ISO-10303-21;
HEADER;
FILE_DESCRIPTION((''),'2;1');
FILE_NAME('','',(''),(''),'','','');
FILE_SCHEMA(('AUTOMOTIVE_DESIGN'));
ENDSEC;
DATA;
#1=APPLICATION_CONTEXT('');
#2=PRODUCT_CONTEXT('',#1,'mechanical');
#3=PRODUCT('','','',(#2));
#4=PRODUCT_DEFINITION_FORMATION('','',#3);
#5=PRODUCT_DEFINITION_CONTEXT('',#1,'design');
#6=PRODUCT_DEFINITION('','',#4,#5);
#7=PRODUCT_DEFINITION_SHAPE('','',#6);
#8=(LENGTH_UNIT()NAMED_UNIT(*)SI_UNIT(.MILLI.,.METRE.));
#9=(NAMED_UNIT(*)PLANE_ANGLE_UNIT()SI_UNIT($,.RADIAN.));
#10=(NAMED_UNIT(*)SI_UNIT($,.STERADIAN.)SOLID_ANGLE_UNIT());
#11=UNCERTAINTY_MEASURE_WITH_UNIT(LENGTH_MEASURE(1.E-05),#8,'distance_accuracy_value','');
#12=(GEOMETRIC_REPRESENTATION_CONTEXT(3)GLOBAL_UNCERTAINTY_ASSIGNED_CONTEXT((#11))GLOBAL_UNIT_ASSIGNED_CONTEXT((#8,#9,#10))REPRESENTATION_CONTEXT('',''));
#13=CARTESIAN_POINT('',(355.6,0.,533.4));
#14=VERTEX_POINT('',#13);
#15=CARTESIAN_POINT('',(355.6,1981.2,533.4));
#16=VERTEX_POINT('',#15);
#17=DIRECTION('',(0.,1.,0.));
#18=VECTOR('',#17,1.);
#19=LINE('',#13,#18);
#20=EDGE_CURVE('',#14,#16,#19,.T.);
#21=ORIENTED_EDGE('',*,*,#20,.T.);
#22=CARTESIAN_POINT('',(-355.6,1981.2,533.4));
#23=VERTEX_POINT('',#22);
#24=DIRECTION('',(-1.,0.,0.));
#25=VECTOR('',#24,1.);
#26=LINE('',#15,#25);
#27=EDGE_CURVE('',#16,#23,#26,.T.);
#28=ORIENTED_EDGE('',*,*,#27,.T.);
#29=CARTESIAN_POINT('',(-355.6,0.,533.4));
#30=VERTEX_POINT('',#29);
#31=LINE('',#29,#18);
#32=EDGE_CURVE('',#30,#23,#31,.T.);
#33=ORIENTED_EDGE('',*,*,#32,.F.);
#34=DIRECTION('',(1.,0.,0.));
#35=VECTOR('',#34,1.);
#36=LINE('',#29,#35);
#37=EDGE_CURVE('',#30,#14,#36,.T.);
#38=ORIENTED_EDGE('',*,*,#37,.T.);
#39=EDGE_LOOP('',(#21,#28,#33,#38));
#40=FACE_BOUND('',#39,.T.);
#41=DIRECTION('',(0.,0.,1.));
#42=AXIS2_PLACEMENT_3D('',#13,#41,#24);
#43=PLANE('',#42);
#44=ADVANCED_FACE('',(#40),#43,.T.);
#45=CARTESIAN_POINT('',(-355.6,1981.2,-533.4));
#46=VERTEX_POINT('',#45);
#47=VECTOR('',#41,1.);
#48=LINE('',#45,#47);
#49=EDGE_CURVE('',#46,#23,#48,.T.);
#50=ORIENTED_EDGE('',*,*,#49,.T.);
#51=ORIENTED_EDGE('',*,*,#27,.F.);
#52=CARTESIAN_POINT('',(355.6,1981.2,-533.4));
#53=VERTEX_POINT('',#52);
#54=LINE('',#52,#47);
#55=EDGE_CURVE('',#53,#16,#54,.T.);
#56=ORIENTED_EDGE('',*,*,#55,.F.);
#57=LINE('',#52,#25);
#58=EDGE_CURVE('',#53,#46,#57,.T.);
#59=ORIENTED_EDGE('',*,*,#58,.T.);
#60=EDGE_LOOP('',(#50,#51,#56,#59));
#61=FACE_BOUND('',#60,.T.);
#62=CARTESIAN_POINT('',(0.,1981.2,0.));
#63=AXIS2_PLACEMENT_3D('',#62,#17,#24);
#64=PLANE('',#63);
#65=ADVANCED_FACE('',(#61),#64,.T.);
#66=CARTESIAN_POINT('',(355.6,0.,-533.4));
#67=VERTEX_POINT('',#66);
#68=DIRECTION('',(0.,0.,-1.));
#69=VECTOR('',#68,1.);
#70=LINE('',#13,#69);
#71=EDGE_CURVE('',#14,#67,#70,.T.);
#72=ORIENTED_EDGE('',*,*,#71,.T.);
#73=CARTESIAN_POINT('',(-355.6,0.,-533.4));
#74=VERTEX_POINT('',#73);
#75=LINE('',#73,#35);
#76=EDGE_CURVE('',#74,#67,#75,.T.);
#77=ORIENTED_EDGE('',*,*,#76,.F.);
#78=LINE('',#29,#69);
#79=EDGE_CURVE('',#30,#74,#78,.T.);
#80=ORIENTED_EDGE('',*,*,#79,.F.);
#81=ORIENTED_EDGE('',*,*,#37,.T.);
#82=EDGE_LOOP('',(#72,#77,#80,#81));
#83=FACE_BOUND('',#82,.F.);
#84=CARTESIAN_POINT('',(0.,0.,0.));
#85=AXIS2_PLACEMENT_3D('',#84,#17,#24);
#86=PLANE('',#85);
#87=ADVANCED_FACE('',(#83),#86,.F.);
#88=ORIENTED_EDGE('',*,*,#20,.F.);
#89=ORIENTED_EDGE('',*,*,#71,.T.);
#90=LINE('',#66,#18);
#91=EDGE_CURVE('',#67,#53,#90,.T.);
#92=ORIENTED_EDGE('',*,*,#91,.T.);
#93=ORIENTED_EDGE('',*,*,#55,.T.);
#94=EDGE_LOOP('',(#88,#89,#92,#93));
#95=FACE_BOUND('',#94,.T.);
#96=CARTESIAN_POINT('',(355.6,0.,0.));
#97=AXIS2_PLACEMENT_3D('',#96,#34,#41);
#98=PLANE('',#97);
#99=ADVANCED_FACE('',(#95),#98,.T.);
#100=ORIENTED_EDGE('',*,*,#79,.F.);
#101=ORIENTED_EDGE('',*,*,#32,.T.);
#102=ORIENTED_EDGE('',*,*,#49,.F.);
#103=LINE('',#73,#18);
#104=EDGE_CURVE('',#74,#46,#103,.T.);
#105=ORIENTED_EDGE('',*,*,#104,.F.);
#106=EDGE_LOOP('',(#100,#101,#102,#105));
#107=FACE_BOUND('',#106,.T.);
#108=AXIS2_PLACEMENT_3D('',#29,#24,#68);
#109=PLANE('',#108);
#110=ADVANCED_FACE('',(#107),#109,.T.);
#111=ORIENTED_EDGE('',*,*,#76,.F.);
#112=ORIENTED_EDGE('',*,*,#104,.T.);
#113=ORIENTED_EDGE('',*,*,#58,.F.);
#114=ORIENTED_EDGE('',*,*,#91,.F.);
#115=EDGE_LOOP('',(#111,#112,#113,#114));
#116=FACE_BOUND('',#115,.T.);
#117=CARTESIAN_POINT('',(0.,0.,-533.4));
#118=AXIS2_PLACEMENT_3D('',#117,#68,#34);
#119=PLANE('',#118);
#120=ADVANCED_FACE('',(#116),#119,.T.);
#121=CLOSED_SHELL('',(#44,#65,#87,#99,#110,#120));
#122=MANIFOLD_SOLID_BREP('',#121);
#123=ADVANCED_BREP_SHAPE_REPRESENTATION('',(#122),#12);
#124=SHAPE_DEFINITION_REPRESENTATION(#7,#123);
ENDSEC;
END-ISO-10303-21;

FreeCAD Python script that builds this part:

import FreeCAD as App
import Part
import Sketcher

V = App.Vector
Q = App.Units.Quantity

doc = App.newDocument("Part")
body = doc.addObject("PartDesign::Body", "Body")

# Sketch on XZ plane
sketch1 = doc.addObject("Sketcher::SketchObject", "Sketch")
body.addObject(sketch1)
sketch1.AttachmentSupport = (doc.XZ_Plane, [""])
sketch1.MapMode = "FlatFace"
sketch1.addGeometry(Part.LineSegment(V(356, 533, 0), V(356, -533, 0)), False)
sketch1.addGeometry(Part.LineSegment(V(356, -533, 0), V(-356, -533, 0)), False)
sketch1.addGeometry(Part.LineSegment(V(-356, -533, 0), V(-356, 533, 0)), False)
sketch1.addGeometry(Part.LineSegment(V(-356, 533, 0), V(356, 533, 0)), False)
sketch1.addConstraint(Sketcher.Constraint("Coincident", 0, 2, 1, 1))
sketch1.addConstraint(Sketcher.Constraint("Coincident", 1, 2, 2, 1))
sketch1.addConstraint(Sketcher.Constraint("Coincident", 2, 2, 3, 1))
sketch1.addConstraint(Sketcher.Constraint("Coincident", 3, 2, 0, 1))
sketch1.addConstraint(Sketcher.Constraint("Vertical", 0))
sketch1.addConstraint(Sketcher.Constraint("Horizontal", 1))
sketch1.addConstraint(Sketcher.Constraint("Vertical", 2))
sketch1.addConstraint(Sketcher.Constraint("Horizontal", 3))
sketch1.addConstraint(Sketcher.Constraint("Symmetric", 0, 2, 2, 2, -1, 1))
sketch1.addConstraint(Sketcher.Constraint("DistanceX", 1, 2, 1, 1, Q("28 in")))
sketch1.addConstraint(Sketcher.Constraint("DistanceY", 0, 2, 0, 1, Q("42 in")))
pad1 = doc.addObject("PartDesign::Pad", "Pad")
body.addObject(pad1)
pad1.Profile = sketch1
pad1.Length = Q("78 in")
pad1.Reversed = True

doc.recompute()
